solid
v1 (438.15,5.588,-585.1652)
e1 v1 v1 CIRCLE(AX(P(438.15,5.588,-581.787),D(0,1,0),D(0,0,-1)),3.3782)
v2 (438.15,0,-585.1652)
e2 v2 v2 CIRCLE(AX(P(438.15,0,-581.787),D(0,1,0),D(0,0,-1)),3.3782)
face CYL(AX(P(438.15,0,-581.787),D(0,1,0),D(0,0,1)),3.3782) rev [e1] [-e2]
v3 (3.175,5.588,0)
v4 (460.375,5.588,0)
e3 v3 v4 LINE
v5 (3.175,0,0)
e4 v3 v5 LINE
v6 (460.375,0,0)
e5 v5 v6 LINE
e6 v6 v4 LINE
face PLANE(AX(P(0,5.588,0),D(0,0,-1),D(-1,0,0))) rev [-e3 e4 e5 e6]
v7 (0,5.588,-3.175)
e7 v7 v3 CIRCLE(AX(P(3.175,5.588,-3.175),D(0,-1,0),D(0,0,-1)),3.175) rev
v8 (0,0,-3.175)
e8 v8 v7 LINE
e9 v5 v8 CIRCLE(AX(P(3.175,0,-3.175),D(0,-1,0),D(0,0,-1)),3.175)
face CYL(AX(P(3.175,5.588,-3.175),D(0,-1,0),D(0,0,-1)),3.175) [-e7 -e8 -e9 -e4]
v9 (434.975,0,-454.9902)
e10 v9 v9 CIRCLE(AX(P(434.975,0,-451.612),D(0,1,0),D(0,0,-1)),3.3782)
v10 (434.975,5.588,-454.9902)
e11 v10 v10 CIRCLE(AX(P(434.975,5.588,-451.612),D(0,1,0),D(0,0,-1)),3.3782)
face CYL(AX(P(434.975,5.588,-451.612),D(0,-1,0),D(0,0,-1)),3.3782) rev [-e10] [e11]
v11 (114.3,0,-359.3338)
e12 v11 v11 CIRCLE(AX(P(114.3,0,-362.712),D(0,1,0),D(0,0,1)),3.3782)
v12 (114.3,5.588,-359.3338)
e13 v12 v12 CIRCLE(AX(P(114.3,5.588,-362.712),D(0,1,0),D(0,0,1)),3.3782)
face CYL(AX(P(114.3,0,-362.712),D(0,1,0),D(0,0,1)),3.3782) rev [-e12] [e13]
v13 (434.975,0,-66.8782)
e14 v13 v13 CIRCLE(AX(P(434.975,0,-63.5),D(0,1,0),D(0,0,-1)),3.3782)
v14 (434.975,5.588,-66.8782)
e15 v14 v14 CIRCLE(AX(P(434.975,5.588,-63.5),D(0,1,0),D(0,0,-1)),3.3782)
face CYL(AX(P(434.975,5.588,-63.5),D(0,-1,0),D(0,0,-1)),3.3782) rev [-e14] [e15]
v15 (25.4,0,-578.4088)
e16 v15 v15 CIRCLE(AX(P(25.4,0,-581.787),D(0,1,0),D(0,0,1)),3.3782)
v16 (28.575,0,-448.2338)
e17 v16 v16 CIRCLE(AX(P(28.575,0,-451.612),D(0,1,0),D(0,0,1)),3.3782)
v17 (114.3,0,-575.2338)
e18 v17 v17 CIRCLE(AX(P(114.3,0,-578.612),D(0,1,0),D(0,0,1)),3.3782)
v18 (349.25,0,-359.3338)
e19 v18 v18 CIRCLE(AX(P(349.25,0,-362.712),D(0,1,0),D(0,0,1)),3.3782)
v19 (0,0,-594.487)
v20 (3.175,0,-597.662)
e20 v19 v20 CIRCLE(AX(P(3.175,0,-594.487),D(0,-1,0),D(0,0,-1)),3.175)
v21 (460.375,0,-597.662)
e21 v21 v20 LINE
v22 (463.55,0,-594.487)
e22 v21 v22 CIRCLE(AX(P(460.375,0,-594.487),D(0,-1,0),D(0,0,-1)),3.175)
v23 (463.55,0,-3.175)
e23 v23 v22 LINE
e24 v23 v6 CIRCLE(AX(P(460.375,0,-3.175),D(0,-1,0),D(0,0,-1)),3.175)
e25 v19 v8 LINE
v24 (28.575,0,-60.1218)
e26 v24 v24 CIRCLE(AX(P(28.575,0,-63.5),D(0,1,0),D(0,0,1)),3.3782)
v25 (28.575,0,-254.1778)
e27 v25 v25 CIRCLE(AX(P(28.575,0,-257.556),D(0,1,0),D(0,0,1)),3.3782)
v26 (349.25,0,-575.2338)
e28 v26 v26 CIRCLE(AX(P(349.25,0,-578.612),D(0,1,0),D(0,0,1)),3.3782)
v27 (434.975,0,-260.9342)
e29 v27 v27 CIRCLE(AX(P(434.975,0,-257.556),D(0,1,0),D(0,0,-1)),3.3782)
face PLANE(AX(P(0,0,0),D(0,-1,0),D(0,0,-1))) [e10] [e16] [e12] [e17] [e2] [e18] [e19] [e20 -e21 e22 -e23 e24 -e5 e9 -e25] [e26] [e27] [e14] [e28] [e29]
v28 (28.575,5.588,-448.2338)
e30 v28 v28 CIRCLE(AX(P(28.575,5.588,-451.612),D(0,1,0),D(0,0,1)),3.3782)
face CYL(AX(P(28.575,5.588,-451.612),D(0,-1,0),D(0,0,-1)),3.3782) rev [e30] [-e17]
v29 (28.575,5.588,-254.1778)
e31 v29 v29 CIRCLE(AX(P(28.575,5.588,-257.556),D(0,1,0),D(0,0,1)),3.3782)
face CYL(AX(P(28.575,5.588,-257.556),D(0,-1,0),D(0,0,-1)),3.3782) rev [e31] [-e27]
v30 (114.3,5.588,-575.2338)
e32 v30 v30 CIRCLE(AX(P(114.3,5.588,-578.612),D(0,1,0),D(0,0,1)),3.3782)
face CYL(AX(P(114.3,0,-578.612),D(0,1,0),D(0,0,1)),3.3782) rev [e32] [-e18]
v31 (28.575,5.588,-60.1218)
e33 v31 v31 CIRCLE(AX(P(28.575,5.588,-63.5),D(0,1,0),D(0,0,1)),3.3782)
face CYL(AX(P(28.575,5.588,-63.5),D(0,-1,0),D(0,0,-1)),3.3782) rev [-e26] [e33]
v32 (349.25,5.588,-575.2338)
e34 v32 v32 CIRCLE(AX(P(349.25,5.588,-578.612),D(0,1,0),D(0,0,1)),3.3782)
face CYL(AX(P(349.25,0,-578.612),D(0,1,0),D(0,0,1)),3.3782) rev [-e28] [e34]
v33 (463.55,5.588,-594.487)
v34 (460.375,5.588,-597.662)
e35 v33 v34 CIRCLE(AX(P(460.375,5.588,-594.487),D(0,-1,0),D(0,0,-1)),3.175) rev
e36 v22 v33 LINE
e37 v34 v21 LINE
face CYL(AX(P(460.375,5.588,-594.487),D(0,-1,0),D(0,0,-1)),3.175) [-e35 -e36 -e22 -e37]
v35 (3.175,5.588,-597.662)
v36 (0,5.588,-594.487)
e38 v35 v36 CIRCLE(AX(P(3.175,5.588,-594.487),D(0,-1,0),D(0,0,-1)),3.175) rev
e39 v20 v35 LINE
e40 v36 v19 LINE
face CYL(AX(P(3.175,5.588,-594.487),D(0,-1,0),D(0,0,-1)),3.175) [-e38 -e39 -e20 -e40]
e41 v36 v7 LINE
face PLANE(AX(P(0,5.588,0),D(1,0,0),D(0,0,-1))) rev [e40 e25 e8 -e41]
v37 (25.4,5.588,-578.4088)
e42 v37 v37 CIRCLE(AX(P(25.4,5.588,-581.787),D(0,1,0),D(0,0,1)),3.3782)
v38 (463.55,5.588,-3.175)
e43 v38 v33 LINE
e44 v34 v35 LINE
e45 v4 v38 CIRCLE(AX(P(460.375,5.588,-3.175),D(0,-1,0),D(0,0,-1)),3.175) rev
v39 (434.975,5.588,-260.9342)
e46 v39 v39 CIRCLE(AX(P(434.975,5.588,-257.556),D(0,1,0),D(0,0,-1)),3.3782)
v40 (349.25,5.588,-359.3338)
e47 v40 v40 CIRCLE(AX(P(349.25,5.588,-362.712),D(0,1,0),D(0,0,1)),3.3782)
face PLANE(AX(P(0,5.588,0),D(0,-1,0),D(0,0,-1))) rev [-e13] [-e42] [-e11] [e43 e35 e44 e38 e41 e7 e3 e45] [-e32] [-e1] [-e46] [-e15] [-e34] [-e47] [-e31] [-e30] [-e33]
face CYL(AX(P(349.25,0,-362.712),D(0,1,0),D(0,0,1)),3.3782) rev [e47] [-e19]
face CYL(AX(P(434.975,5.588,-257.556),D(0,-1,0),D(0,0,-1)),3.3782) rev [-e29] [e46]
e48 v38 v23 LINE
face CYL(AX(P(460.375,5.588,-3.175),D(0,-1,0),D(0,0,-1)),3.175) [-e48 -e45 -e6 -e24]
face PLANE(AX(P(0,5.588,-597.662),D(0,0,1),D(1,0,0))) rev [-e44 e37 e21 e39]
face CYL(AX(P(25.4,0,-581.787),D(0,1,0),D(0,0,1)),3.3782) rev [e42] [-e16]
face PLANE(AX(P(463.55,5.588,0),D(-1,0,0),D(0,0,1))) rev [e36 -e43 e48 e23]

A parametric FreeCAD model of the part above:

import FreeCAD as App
import Part
import Sketcher
Q = App.Units.Quantity


def edges_at(feature, points):
    """Names of the edges that pass closest to the given points."""
    edges = feature.Shape.Edges
    near = lambda p: min(range(len(edges)), key=lambda i: edges[i].distToShape(Part.Vertex(*p))[0])
    return sorted({f"Edge{near(p) + 1}" for p in points})


def add_polygon(sketch, points):
    """Adds a closed chain of lines whose ends are joined by coincident constraints."""
    first, n = sketch.GeometryCount, len(points)
    for a, b in zip(points, points[1:] + points[:1]):
        sketch.addGeometry(Part.LineSegment(App.Vector(*a, 0), App.Vector(*b, 0)), False)
    for i in range(n):
        sketch.addConstraint(Sketcher.Constraint("Coincident", first + i, 2, first + (i + 1) % n, 1))

doc = App.newDocument("Part")
body = doc.addObject("PartDesign::Body", "Body")

sketch1 = doc.addObject("Sketcher::SketchObject", "Sketch")
body.addObject(sketch1)
sketch1.AttachmentSupport = (doc.XZ_Plane, [""])
sketch1.MapMode = "FlatFace"
add_polygon(sketch1, [(0, -597.7), (0, 0), (463.6, 0), (463.6, -597.7)])
sketch1.addGeometry(Part.Circle(App.Vector(28.6, -63.5, 0), App.Vector(0, 0, 1), 3.4), False)
sketch1.addGeometry(Part.Circle(App.Vector(28.6, -257.6, 0), App.Vector(0, 0, 1), 3.4), False)
sketch1.addGeometry(Part.Circle(App.Vector(435, -63.5, 0), App.Vector(0, 0, 1), 3.4), False)
sketch1.addGeometry(Part.Circle(App.Vector(435, -257.6, 0), App.Vector(0, 0, 1), 3.4), False)
sketch1.addGeometry(Part.Circle(App.Vector(28.6, -451.6, 0), App.Vector(0, 0, 1), 3.4), False)
sketch1.addGeometry(Part.Circle(App.Vector(435, -451.6, 0), App.Vector(0, 0, 1), 3.4), False)
sketch1.addConstraint([
    Sketcher.Constraint("Vertical", 0),
    Sketcher.Constraint("Horizontal", 1),
    Sketcher.Constraint("Vertical", 2),
    Sketcher.Constraint("Horizontal", 3),
    Sketcher.Constraint("Coincident", 0, 2, -1, 1),
    Sketcher.Constraint("Equal", 4, 5),
    Sketcher.Constraint("Equal", 5, 6),
    Sketcher.Constraint("Equal", 6, 7),
    Sketcher.Constraint("Equal", 7, 8),
    Sketcher.Constraint("Equal", 8, 9),
    Sketcher.Constraint("Horizontal", 4, 3, 6, 3),
    Sketcher.Constraint("Horizontal", 5, 3, 7, 3),
    Sketcher.Constraint("Horizontal", 8, 3, 9, 3),
    Sketcher.Constraint("Vertical", 4, 3, 5, 3),
    Sketcher.Constraint("Vertical", 6, 3, 7, 3),
    Sketcher.Constraint("Vertical", 5, 3, 8, 3),
    Sketcher.Constraint("Vertical", 7, 3, 9, 3),
    Sketcher.Constraint("Diameter", 4, Q("0.266 in")),
    Sketcher.Constraint("DistanceX", 4, 3, 6, 3, Q("16 in")),
    Sketcher.Constraint("DistanceX", 1, 1, 1, 2, Q("18.25 in")),
    Sketcher.Constraint("DistanceY", 0, 1, 0, 2, Q("23.53 in")),
    Sketcher.Constraint("DistanceY", 4, 3, -1, 1, Q("2.5 in")),
    Sketcher.Constraint("DistanceY", 5, 3, -1, 1, Q("10.14 in")),
    Sketcher.Constraint("DistanceY", 8, 3, -1, 1, Q("17.78 in")),
    Sketcher.Constraint("DistanceX", -1, 1, 4, 3, Q("1.125 in")),
])
pad1 = doc.addObject("PartDesign::Pad", "Pad")
body.addObject(pad1)
pad1.Profile = sketch1
pad1.Length = Q("0.22 in")
pad1.Reversed = True
doc.recompute()

fillet = doc.addObject("PartDesign::Fillet", "Fillet")
body.addObject(fillet)
fillet.Base = (pad1, edges_at(pad1, [
    (0, 2.794, -597.662),
    (463.55, 2.794, -597.662),
    (463.55, 2.794, 0),
    (0, 2.794, 0),
]))
fillet.Radius = Q("0.125 in")

sketch2 = doc.addObject("Sketcher::SketchObject", "Sketch001")
body.addObject(sketch2)
sketch2.AttachmentSupport = (doc.XZ_Plane, [""])
sketch2.MapMode = "FlatFace"
sketch2.AttachmentOffset = App.Placement(App.Vector(0, 0, -0.22 * 25.4), App.Rotation())
sketch2.addGeometry([
    Part.Circle(App.Vector(25.4, -581.8, 0), App.Vector(0, 0, 1), 3.4),
    Part.Circle(App.Vector(438.1, -581.8, 0), App.Vector(0, 0, 1), 3.4),
], False)
sketch2.addConstraint([
    Sketcher.Constraint("Equal", 0, 1),
    Sketcher.Constraint("Horizontal", 0, 3, 1, 3),
    Sketcher.Constraint("Diameter", 0, Q("0.266 in")),
    Sketcher.Constraint("DistanceX", -1, 1, 0, 3, Q("1 in")),
    Sketcher.Constraint("DistanceX", -1, 1, 1, 3, Q("17.25 in")),
    Sketcher.Constraint("DistanceY", 0, 3, -1, 1, Q("22.905 in")),
])
pocket1 = doc.addObject("PartDesign::Pocket", "Pocket")
body.addObject(pocket1)
pocket1.Profile = sketch2
pocket1.Type = "ThroughAll"
pocket1.Reversed = True

sketch3 = doc.addObject("Sketcher::SketchObject", "Sketch002")
body.addObject(sketch3)
sketch3.AttachmentSupport = (doc.XZ_Plane, [""])
sketch3.MapMode = "FlatFace"
sketch3.AttachmentOffset = App.Placement(App.Vector(0, 0, -0.22 * 25.4), App.Rotation())
sketch3.addGeometry([
    Part.Circle(App.Vector(114.3, -578.6, 0), App.Vector(0, 0, 1), 3.4),
    Part.Circle(App.Vector(349.2, -578.6, 0), App.Vector(0, 0, 1), 3.4),
    Part.Circle(App.Vector(114.3, -362.7, 0), App.Vector(0, 0, 1), 3.4),
    Part.Circle(App.Vector(349.2, -362.7, 0), App.Vector(0, 0, 1), 3.4),
], False)
sketch3.addConstraint([
    Sketcher.Constraint("Equal", 0, 1),
    Sketcher.Constraint("Equal", 1, 2),
    Sketcher.Constraint("Equal", 2, 3),
    Sketcher.Constraint("Horizontal", 0, 3, 1, 3),
    Sketcher.Constraint("Horizontal", 2, 3, 3, 3),
    Sketcher.Constraint("Vertical", 0, 3, 2, 3),
    Sketcher.Constraint("Vertical", 1, 3, 3, 3),
    Sketcher.Constraint("Diameter", 0, Q("0.266 in")),
    Sketcher.Constraint("DistanceX", -1, 1, 0, 3, Q("4.5 in")),
    Sketcher.Constraint("DistanceY", 0, 3, 2, 3, Q("8.5 in")),
    Sketcher.Constraint("DistanceY", 0, 3, -1, 1, Q("22.78 in")),
    Sketcher.Constraint("DistanceX", -1, 1, 1, 3, Q("13.75 in")),
])
pocket2 = doc.addObject("PartDesign::Pocket", "Pocket001")
body.addObject(pocket2)
pocket2.Profile = sketch3
pocket2.Type = "ThroughAll"
pocket2.Reversed = True

doc.recompute()
